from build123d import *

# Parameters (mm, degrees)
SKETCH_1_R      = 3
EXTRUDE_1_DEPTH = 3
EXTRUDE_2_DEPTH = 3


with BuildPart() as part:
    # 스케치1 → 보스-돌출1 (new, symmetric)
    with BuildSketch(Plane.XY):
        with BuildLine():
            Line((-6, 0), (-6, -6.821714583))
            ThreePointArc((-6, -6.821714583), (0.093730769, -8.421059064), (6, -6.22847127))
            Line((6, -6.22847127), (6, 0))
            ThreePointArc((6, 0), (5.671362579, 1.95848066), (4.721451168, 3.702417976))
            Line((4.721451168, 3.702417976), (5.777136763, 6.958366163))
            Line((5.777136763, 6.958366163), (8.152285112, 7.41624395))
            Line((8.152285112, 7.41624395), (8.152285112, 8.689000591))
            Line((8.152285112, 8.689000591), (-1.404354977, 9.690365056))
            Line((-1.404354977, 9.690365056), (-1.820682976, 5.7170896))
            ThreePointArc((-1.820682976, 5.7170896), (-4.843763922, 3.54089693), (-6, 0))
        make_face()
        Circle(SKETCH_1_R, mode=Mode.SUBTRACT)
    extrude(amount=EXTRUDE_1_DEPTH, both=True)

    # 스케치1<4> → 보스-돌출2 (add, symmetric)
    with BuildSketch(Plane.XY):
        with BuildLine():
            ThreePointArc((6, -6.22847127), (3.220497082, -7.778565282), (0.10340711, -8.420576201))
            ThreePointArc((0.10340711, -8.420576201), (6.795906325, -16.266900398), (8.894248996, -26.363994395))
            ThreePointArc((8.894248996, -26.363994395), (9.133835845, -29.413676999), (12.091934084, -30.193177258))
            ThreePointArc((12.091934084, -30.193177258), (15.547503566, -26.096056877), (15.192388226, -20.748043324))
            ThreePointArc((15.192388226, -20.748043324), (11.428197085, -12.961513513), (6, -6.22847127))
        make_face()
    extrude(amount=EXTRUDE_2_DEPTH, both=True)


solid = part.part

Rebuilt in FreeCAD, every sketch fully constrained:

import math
import FreeCAD as App
import Part
import Sketcher

V = App.Vector
Q = App.Units.Quantity

doc = App.newDocument("Part")
body = doc.addObject("PartDesign::Body", "Body")

# Sketch on XY plane
sketch1 = body.newObject("Sketcher::SketchObject", "Sketch")
sketch1.AttachmentSupport = (doc.getObject("XY_Plane"), [""])
sketch1.MapMode = "FlatFace"
sketch1.addGeometry([
    Part.LineSegment(V(-6, 0, 0), V(-6, -6.8, 0)),  # 0
    Part.ArcOfCircle(Part.Circle(V(-0.4, 2, 0), V(0, 0, 1), 10.5), math.radians(-122), math.radians(-52)),  # 1
    Part.LineSegment(V(6, -6.2, 0), V(6, 0, 0)),  # 2
    Part.ArcOfCircle(Part.Circle(V(0, 0, 0), V(0, 0, 1), 6), math.radians(0), math.radians(38)),  # 3
    Part.LineSegment(V(4.7, 3.7, 0), V(5.8, 7, 0)),  # 4
    Part.LineSegment(V(5.8, 7, 0), V(8.2, 7.4, 0)),  # 5
    Part.LineSegment(V(8.2, 7.4, 0), V(8.2, 8.7, 0)),  # 6
    Part.LineSegment(V(8.2, 8.7, 0), V(-1.4, 9.7, 0)),  # 7
    Part.LineSegment(V(-1.4, 9.7, 0), V(-1.8, 5.7, 0)),  # 8
    Part.ArcOfCircle(Part.Circle(V(0, 0, 0), V(0, 0, 1), 6), math.radians(108), math.radians(180)),  # 9
    Part.Circle(V(0, 0, 0), V(0, 0, 1), 3),  # 10
], False)
sketch1.addConstraint([
    Sketcher.Constraint("Coincident", 0, 2, 1, 1),
    Sketcher.Constraint("Coincident", 1, 2, 2, 1),
    Sketcher.Constraint("Tangent", 2, 2, 3, 1),
    Sketcher.Constraint("Coincident", 3, 2, 4, 1),
    Sketcher.Constraint("Coincident", 4, 2, 5, 1),
    Sketcher.Constraint("Coincident", 5, 2, 6, 1),
    Sketcher.Constraint("Coincident", 6, 2, 7, 1),
    Sketcher.Constraint("Coincident", 7, 2, 8, 1),
    Sketcher.Constraint("Coincident", 8, 2, 9, 1),
    Sketcher.Constraint("Tangent", 9, 2, 0, 1),
    Sketcher.Constraint("Vertical", 0),
    Sketcher.Constraint("Vertical", 2),
    Sketcher.Constraint("Vertical", 6),
    Sketcher.Constraint("Coincident", 3, 3, -1, 1),
    Sketcher.Constraint("Coincident", 9, 3, -1, 1),
    Sketcher.Constraint("Coincident", 10, 3, -1, 1),
    Sketcher.Constraint("Equal", 3, 9),
    Sketcher.Constraint("Perpendicular", 7, 8),
    Sketcher.Constraint("Diameter", 10, Q("6 mm")),
    Sketcher.Constraint("Radius", 3, Q("6 mm")),
    Sketcher.Constraint("DistanceY", -1, 1, 6, 2, Q("8.689001 mm")),
    Sketcher.Constraint("Radius", 1, Q("10.454576 mm")),
    Sketcher.Constraint("DistanceY", 4, 2, 7, 2, Q("2.731999 mm")),
    Sketcher.Constraint("DistanceY", 2, 1, 2, 2, Q("6.228471 mm")),
    Sketcher.Constraint("DistanceY", 1, 3, 4, 2, Q("4.937602 mm")),
    Sketcher.Constraint("DistanceX", 8, 2, 1, 3, Q("1.398202 mm")),
    Sketcher.Constraint("Distance", 5, Q("2.41888 mm")),
    Sketcher.Constraint("Distance", 7, Q("9.608959 mm")),
    Sketcher.Constraint("DistanceY", 0, 2, 0, 1, Q("6.821715 mm")),
    Sketcher.Constraint("DistanceY", 6, 1, 6, 2, Q("1.272757 mm")),
    Sketcher.Constraint("DistanceX", -1, 1, 3, 2, Q("4.721451 mm")),
])
pad1 = body.newObject("PartDesign::Pad", "Pad")
pad1.Profile = sketch1
pad1.Length = 6
pad1.Midplane = True

# Sketch on XY plane
sketch2 = body.newObject("Sketcher::SketchObject", "Sketch001")
sketch2.AttachmentSupport = (doc.getObject("XY_Plane"), [""])
sketch2.MapMode = "FlatFace"
sketch2.addGeometry([
    Part.ArcOfCircle(Part.Circle(V(-0.4, 2, 0), V(0, 0, 1), 10.5), math.radians(-87), math.radians(-52)),  # 0
    Part.ArcOfCircle(Part.Circle(V(-11.9, -25.4, 0), V(0, 0, 1), 20.8), math.radians(-3), math.radians(55)),  # 1
    Part.ArcOfCircle(Part.Circle(V(11.2, -27.7, 0), V(0, 0, 1), 2.6), math.radians(149), math.radians(291)),  # 2
    Part.ArcOfCircle(Part.Circle(V(8.7, -23.9, 0), V(0, 0, 1), 7.2), math.radians(-62), math.radians(26)),  # 3
    Part.ArcOfCircle(Part.Circle(V(-20.7, -33.3, 0), V(0, 0, 1), 38), math.radians(19), math.radians(45)),  # 4
], False)
sketch2.addConstraint([
    Sketcher.Constraint("Coincident", 0, 1, 1, 2),
    Sketcher.Constraint("Coincident", 1, 1, 2, 1),
    Sketcher.Constraint("Coincident", 2, 2, 3, 1),
    Sketcher.Constraint("Coincident", 3, 2, 4, 1),
    Sketcher.Constraint("Coincident", 4, 2, 0, 2),
    Sketcher.Constraint("DistanceX", -1, 1, 4, 2, Q("6 mm")),
    Sketcher.Constraint("Radius", 1, Q("20.789058 mm")),
    Sketcher.Constraint("Radius", 4, Q("37.97964 mm")),
    Sketcher.Constraint("Radius", 0, Q("10.454576 mm")),
    Sketcher.Constraint("Radius", 2, Q("2.642183 mm")),
    Sketcher.Constraint("Radius", 3, Q("7.162604 mm")),
    Sketcher.Constraint("DistanceY", 1, 3, -1, 1, Q("25.413201 mm")),
    Sketcher.Constraint("DistanceY", 2, 3, -1, 1, Q("27.7201 mm")),
    Sketcher.Constraint("DistanceY", 2, 2, 0, 1, Q("21.772601 mm")),
    Sketcher.Constraint("DistanceY", 3, 3, 3, 2, Q("3.1141 mm")),
    Sketcher.Constraint("DistanceX", 0, 3, -1, 1, Q("0.422481 mm")),
    Sketcher.Constraint("DistanceX", -1, 1, 2, 3, Q("11.161871 mm")),
    Sketcher.Constraint("DistanceY", 4, 3, -1, 1, Q("33.277329 mm")),
    Sketcher.Constraint("DistanceX", -1, 1, 1, 1, Q("8.894249 mm")),
    Sketcher.Constraint("DistanceX", -1, 1, 3, 2, Q("15.192388 mm")),
])
pad2 = body.newObject("PartDesign::Pad", "Pad001")
pad2.Profile = sketch2
pad2.Length = 6
pad2.Midplane = True

doc.recompute()
